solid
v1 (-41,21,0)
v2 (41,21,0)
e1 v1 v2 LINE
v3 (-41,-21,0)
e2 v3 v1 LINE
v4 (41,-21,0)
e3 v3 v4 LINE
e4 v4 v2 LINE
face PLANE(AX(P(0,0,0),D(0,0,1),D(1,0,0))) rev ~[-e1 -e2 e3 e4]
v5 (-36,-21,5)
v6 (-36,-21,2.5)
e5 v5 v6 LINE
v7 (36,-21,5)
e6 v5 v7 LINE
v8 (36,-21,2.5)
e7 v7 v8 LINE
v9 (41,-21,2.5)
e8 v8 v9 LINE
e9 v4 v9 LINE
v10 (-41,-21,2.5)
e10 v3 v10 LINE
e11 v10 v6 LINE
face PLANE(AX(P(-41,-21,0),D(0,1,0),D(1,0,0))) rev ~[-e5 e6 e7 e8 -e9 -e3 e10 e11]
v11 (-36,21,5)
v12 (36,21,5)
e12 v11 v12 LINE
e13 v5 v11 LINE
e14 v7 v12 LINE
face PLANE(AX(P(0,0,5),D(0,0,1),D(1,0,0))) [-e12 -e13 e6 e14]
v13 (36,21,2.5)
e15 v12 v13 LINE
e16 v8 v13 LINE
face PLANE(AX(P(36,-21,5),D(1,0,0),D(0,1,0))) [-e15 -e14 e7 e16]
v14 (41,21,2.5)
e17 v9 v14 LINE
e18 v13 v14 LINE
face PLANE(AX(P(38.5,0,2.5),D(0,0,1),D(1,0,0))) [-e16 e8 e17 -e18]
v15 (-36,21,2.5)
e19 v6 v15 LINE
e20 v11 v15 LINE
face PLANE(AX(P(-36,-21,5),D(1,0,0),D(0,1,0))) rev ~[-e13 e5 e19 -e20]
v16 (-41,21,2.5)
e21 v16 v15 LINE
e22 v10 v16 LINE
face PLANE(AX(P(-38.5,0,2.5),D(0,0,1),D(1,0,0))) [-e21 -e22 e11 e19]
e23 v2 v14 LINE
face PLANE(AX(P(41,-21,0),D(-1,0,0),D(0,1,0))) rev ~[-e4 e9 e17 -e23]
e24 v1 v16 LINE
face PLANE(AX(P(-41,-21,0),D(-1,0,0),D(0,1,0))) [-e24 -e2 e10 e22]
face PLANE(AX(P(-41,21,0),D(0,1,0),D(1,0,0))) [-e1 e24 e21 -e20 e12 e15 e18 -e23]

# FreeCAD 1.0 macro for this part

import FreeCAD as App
import Part
import Sketcher
from FreeCAD import Vector


def add_polygon(sketch, points):
    """Adds a closed chain of lines whose ends are joined by coincident constraints."""
    first, n = sketch.GeometryCount, len(points)
    for a, b in zip(points, points[1:] + points[:1]):
        sketch.addGeometry(Part.LineSegment(App.Vector(*a, 0), App.Vector(*b, 0)), False)
    for i in range(n):
        sketch.addConstraint(Sketcher.Constraint("Coincident", first + i, 2, first + (i + 1) % n, 1))

doc = App.newDocument("Part")
params = doc.addObject("Spreadsheet::Sheet", "Params")
for row, (alias, value) in enumerate([
    ("sketch1_width", "82 mm"),
    ("sketch1_height", "42 mm"),
    ("pad1_length", "5 mm"),
    ("sketch2_width", "5 mm"),
    ("sketch2_height", "42 mm"),
    ("pocket1_length", "2.5 mm"),
], start=1):
    params.set(f"A{row}", alias)
    params.set(f"B{row}", "=" + value)
    params.setAlias(f"B{row}", alias)

body = doc.addObject("PartDesign::Body", "Body")

sketch1 = body.newObject("Sketcher::SketchObject", "Sketch")
sketch1.AttachmentSupport = (doc.getObject("XY_Plane"), [""])
sketch1.MapMode = "FlatFace"
add_polygon(sketch1, [(-41, 21), (-41, -21), (41, -21), (41, 21)])
sketch1.addConstraint(Sketcher.Constraint("Vertical", 0))
sketch1.addConstraint(Sketcher.Constraint("Horizontal", 1))
sketch1.addConstraint(Sketcher.Constraint("Vertical", 2))
sketch1.addConstraint(Sketcher.Constraint("Horizontal", 3))
sketch1.addConstraint(Sketcher.Constraint("Symmetric", 0, 2, 2, 2, -1, 1))
sketch1.addConstraint(Sketcher.Constraint("DistanceX", 1, 1, 1, 2, 82.0))
sketch1.addConstraint(Sketcher.Constraint("DistanceY", 0, 2, 0, 1, 42.0))
sketch1.setExpression("Constraints[9]", "Params.sketch1_width")
sketch1.setExpression("Constraints[10]", "Params.sketch1_height")
pad1 = body.newObject("PartDesign::Pad", "Pad")
pad1.Profile = sketch1
pad1.setExpression("Length", "Params.pad1_length")

sketch2 = body.newObject("Sketcher::SketchObject", "Sketch001")
sketch2.AttachmentSupport = (doc.getObject("XY_Plane"), [""])
sketch2.MapMode = "FlatFace"
sketch2.AttachmentOffset = App.Placement(Vector(0, 0, 5), App.Rotation())
add_polygon(sketch2, [(-41, 21), (-41, -21), (-36, -21), (-36, 21)])
add_polygon(sketch2, [(36, 21), (36, -21), (41, -21), (41, 21)])
sketch2.addConstraint(Sketcher.Constraint("Vertical", 0))
sketch2.addConstraint(Sketcher.Constraint("Horizontal", 1))
sketch2.addConstraint(Sketcher.Constraint("Vertical", 2))
sketch2.addConstraint(Sketcher.Constraint("Horizontal", 3))
sketch2.addConstraint(Sketcher.Constraint("Vertical", 4))
sketch2.addConstraint(Sketcher.Constraint("Horizontal", 5))
sketch2.addConstraint(Sketcher.Constraint("Vertical", 6))
sketch2.addConstraint(Sketcher.Constraint("Horizontal", 7))
sketch2.addConstraint(Sketcher.Constraint("Symmetric", 2, 2, 4, 2, -1, 1))
sketch2.addConstraint(Sketcher.Constraint("Symmetric", 0, 2, 6, 2, -1, 1))
sketch2.addConstraint(Sketcher.Constraint("Horizontal", 1, 2, 4, 2))
sketch2.addConstraint(Sketcher.Constraint("DistanceX", 1, 1, 1, 2, 5.0))
sketch2.addConstraint(Sketcher.Constraint("DistanceY", 0, 2, 0, 1, 42.0))
sketch2.addConstraint(Sketcher.Constraint("DistanceX", 0, 2, -1, 1, 41.0))
sketch2.setExpression("Constraints[19]", "Params.sketch2_width")
sketch2.setExpression("Constraints[20]", "Params.sketch2_height")
pocket1 = body.newObject("PartDesign::Pocket", "Pocket")
pocket1.Profile = sketch2
pocket1.setExpression("Length", "Params.pocket1_length")

doc.recompute()
